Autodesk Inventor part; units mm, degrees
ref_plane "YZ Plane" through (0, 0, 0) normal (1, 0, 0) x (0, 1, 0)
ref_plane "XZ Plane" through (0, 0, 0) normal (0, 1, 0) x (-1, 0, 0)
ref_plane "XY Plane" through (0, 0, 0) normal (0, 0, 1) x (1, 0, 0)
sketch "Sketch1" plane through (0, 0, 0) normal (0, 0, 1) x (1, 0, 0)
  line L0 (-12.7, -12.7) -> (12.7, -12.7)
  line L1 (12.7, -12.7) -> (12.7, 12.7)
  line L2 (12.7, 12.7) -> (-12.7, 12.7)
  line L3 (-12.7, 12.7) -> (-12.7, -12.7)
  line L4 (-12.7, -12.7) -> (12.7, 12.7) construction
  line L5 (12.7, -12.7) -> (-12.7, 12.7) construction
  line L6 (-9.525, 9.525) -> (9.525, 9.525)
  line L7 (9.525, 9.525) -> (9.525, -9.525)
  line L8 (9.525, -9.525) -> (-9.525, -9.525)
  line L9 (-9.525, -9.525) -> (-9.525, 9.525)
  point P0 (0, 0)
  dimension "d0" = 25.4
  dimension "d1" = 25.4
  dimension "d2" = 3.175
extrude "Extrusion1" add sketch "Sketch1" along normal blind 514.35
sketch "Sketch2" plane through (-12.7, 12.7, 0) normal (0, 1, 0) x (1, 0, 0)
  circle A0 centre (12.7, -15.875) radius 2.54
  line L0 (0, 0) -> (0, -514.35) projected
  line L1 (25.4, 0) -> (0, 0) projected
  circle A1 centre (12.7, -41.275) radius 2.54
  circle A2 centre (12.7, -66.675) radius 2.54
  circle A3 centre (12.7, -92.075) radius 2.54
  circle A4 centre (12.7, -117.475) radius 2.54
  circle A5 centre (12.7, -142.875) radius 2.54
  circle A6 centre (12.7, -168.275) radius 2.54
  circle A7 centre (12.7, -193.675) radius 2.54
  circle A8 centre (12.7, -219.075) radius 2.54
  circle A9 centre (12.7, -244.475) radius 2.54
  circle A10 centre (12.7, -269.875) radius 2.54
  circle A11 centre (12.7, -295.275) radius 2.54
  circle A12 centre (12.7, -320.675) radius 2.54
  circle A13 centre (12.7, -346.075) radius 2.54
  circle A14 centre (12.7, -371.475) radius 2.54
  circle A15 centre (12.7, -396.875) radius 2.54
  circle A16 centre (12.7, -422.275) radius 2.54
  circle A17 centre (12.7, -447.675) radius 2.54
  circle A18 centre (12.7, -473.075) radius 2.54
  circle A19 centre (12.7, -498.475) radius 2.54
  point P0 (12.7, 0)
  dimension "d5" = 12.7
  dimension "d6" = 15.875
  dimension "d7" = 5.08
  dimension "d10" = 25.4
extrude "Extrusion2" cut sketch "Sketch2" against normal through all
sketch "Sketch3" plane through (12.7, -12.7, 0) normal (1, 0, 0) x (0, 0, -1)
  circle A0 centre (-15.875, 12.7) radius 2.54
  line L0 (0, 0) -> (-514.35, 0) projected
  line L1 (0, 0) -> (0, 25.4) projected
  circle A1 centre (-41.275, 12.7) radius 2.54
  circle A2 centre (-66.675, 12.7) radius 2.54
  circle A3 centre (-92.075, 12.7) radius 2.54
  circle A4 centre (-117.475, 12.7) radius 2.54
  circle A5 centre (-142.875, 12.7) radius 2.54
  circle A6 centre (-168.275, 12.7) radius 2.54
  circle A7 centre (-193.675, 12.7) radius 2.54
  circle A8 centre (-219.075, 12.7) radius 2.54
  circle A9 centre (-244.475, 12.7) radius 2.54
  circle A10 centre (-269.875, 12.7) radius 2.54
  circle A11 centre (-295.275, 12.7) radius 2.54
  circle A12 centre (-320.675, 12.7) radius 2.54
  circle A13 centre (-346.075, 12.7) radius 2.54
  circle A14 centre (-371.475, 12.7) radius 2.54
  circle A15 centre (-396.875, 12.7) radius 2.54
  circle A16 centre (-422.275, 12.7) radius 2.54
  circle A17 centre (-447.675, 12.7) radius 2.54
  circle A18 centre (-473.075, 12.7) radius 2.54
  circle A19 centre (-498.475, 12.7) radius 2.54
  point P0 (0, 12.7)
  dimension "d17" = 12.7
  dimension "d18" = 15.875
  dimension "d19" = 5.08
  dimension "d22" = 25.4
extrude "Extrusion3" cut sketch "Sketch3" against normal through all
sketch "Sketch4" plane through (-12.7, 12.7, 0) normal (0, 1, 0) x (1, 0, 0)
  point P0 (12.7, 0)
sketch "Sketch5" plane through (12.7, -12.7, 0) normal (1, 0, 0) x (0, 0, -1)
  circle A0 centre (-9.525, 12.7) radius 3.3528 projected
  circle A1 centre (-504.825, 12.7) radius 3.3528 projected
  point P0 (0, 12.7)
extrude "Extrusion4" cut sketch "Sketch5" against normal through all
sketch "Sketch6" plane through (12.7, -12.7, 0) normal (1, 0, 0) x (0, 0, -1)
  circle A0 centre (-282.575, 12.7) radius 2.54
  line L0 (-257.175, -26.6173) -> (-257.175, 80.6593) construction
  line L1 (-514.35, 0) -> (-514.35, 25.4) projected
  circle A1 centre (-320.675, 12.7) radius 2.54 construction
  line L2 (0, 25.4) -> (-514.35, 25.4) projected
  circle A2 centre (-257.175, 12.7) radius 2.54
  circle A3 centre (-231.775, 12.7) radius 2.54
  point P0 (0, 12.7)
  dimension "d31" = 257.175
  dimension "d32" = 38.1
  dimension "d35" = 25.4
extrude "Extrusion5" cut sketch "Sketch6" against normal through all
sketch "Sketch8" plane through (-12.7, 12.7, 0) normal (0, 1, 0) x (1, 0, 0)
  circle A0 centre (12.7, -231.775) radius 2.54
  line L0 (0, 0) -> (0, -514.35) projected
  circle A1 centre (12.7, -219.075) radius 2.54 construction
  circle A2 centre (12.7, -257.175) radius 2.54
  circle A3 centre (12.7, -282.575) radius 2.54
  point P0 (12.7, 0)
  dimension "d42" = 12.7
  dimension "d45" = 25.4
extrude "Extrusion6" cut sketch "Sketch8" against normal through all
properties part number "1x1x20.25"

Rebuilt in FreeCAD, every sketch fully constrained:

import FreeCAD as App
import Part
import Sketcher
Q = App.Units.Quantity

doc = App.newDocument("Part")
body = doc.addObject("PartDesign::Body", "Body")

sketch1 = body.newObject("Sketcher::SketchObject", "Sketch")
sketch1.AttachmentSupport = (doc.getObject("XY_Plane"), [""])
sketch1.MapMode = "FlatFace"
sketch1.addGeometry(Part.LineSegment(App.Vector(-13, 13, 0), App.Vector(-13, -13, 0)), False)
sketch1.addGeometry(Part.LineSegment(App.Vector(-13, -13, 0), App.Vector(13, -13, 0)), False)
sketch1.addGeometry(Part.LineSegment(App.Vector(13, -13, 0), App.Vector(13, 13, 0)), False)
sketch1.addGeometry(Part.LineSegment(App.Vector(13, 13, 0), App.Vector(-13, 13, 0)), False)
sketch1.addGeometry(Part.LineSegment(App.Vector(-10, -10, 0), App.Vector(-10, 10, 0)), False)
sketch1.addGeometry(Part.LineSegment(App.Vector(-10, 10, 0), App.Vector(10, 10, 0)), False)
sketch1.addGeometry(Part.LineSegment(App.Vector(10, 10, 0), App.Vector(10, -10, 0)), False)
sketch1.addGeometry(Part.LineSegment(App.Vector(10, -10, 0), App.Vector(-10, -10, 0)), False)
sketch1.addConstraint(Sketcher.Constraint("Coincident", 0, 2, 1, 1))
sketch1.addConstraint(Sketcher.Constraint("Coincident", 1, 2, 2, 1))
sketch1.addConstraint(Sketcher.Constraint("Coincident", 2, 2, 3, 1))
sketch1.addConstraint(Sketcher.Constraint("Coincident", 3, 2, 0, 1))
sketch1.addConstraint(Sketcher.Constraint("Coincident", 4, 2, 5, 1))
sketch1.addConstraint(Sketcher.Constraint("Coincident", 5, 2, 6, 1))
sketch1.addConstraint(Sketcher.Constraint("Coincident", 6, 2, 7, 1))
sketch1.addConstraint(Sketcher.Constraint("Coincident", 7, 2, 4, 1))
sketch1.addConstraint(Sketcher.Constraint("Vertical", 0))
sketch1.addConstraint(Sketcher.Constraint("Horizontal", 1))
sketch1.addConstraint(Sketcher.Constraint("Vertical", 2))
sketch1.addConstraint(Sketcher.Constraint("Horizontal", 3))
sketch1.addConstraint(Sketcher.Constraint("Vertical", 4))
sketch1.addConstraint(Sketcher.Constraint("Horizontal", 5))
sketch1.addConstraint(Sketcher.Constraint("Vertical", 6))
sketch1.addConstraint(Sketcher.Constraint("Horizontal", 7))
sketch1.addConstraint(Sketcher.Constraint("Symmetric", 0, 2, 2, 2, -1, 1))
sketch1.addConstraint(Sketcher.Constraint("Symmetric", 4, 2, 6, 2, -1, 1))
sketch1.addConstraint(Sketcher.Constraint("Equal", 3, 0))
sketch1.addConstraint(Sketcher.Constraint("Equal", 7, 4))
sketch1.addConstraint(Sketcher.Constraint("DistanceX", 1, 1, 1, 2, Q("1 in")))
sketch1.addConstraint(Sketcher.Constraint("DistanceX", 3, 2, 4, 2, Q("0.125 in")))
pad1 = body.newObject("PartDesign::Pad", "Pad")
pad1.Profile = sketch1
pad1.Length = Q("20.25 in")

sketch2 = body.newObject("Sketcher::SketchObject", "Sketch001")
sketch2.AttachmentSupport = (doc.getObject("XZ_Plane"), [""])
sketch2.MapMode = "FlatFace"
sketch2.AttachmentOffset = App.Placement(App.Vector(0, 0, -0.5 * 25.4), App.Rotation())
sketch2.addGeometry(Part.Circle(App.Vector(0, 15.9, 0), App.Vector(0, 0, 1), 2.5), False)
sketch2.addGeometry(Part.Circle(App.Vector(0, 41.3, 0), App.Vector(0, 0, 1), 2.5), False)
sketch2.addGeometry(Part.Circle(App.Vector(0, 66.7, 0), App.Vector(0, 0, 1), 2.5), False)
sketch2.addGeometry(Part.Circle(App.Vector(0, 92.1, 0), App.Vector(0, 0, 1), 2.5), False)
sketch2.addGeometry(Part.Circle(App.Vector(0, 117.5, 0), App.Vector(0, 0, 1), 2.5), False)
sketch2.addGeometry(Part.Circle(App.Vector(0, 142.9, 0), App.Vector(0, 0, 1), 2.5), False)
sketch2.addGeometry(Part.Circle(App.Vector(0, 168.3, 0), App.Vector(0, 0, 1), 2.5), False)
sketch2.addGeometry(Part.Circle(App.Vector(0, 193.7, 0), App.Vector(0, 0, 1), 2.5), False)
sketch2.addGeometry(Part.Circle(App.Vector(0, 219.1, 0), App.Vector(0, 0, 1), 2.5), False)
sketch2.addGeometry(Part.Circle(App.Vector(0, 244.5, 0), App.Vector(0, 0, 1), 2.5), False)
sketch2.addGeometry(Part.Circle(App.Vector(0, 269.9, 0), App.Vector(0, 0, 1), 2.5), False)
sketch2.addGeometry(Part.Circle(App.Vector(0, 295.3, 0), App.Vector(0, 0, 1), 2.5), False)
sketch2.addGeometry(Part.Circle(App.Vector(0, 320.7, 0), App.Vector(0, 0, 1), 2.5), False)
sketch2.addGeometry(Part.Circle(App.Vector(0, 346.1, 0), App.Vector(0, 0, 1), 2.5), False)
sketch2.addGeometry(Part.Circle(App.Vector(0, 371.5, 0), App.Vector(0, 0, 1), 2.5), False)
sketch2.addGeometry(Part.Circle(App.Vector(0, 396.9, 0), App.Vector(0, 0, 1), 2.5), False)
sketch2.addGeometry(Part.Circle(App.Vector(0, 422.3, 0), App.Vector(0, 0, 1), 2.5), False)
sketch2.addGeometry(Part.Circle(App.Vector(0, 447.7, 0), App.Vector(0, 0, 1), 2.5), False)
sketch2.addGeometry(Part.Circle(App.Vector(0, 473.1, 0), App.Vector(0, 0, 1), 2.5), False)
sketch2.addGeometry(Part.Circle(App.Vector(0, 498.5, 0), App.Vector(0, 0, 1), 2.5), False)
sketch2.addConstraint(Sketcher.Constraint("Equal", 0, 1))
sketch2.addConstraint(Sketcher.Constraint("Equal", 1, 2))
sketch2.addConstraint(Sketcher.Constraint("Equal", 2, 3))
sketch2.addConstraint(Sketcher.Constraint("Equal", 3, 4))
sketch2.addConstraint(Sketcher.Constraint("Equal", 4, 5))
sketch2.addConstraint(Sketcher.Constraint("Equal", 5, 6))
sketch2.addConstraint(Sketcher.Constraint("Equal", 6, 7))
sketch2.addConstraint(Sketcher.Constraint("Equal", 7, 8))
sketch2.addConstraint(Sketcher.Constraint("Equal", 8, 9))
sketch2.addConstraint(Sketcher.Constraint("Equal", 9, 10))
sketch2.addConstraint(Sketcher.Constraint("Equal", 10, 11))
sketch2.addConstraint(Sketcher.Constraint("Equal", 11, 12))
sketch2.addConstraint(Sketcher.Constraint("Equal", 12, 13))
sketch2.addConstraint(Sketcher.Constraint("Equal", 13, 14))
sketch2.addConstraint(Sketcher.Constraint("Equal", 14, 15))
sketch2.addConstraint(Sketcher.Constraint("Equal", 15, 16))
sketch2.addConstraint(Sketcher.Constraint("Equal", 16, 17))
sketch2.addConstraint(Sketcher.Constraint("Equal", 17, 18))
sketch2.addConstraint(Sketcher.Constraint("Equal", 18, 19))
sketch2.addConstraint(Sketcher.Constraint("PointOnObject", 0, 3, -2))
sketch2.addConstraint(Sketcher.Constraint("PointOnObject", 1, 3, -2))
sketch2.addConstraint(Sketcher.Constraint("PointOnObject", 2, 3, -2))
sketch2.addConstraint(Sketcher.Constraint("PointOnObject", 3, 3, -2))
sketch2.addConstraint(Sketcher.Constraint("PointOnObject", 4, 3, -2))
sketch2.addConstraint(Sketcher.Constraint("PointOnObject", 5, 3, -2))
sketch2.addConstraint(Sketcher.Constraint("PointOnObject", 6, 3, -2))
sketch2.addConstraint(Sketcher.Constraint("PointOnObject", 7, 3, -2))
sketch2.addConstraint(Sketcher.Constraint("PointOnObject", 8, 3, -2))
sketch2.addConstraint(Sketcher.Constraint("PointOnObject", 9, 3, -2))
sketch2.addConstraint(Sketcher.Constraint("PointOnObject", 10, 3, -2))
sketch2.addConstraint(Sketcher.Constraint("PointOnObject", 11, 3, -2))
sketch2.addConstraint(Sketcher.Constraint("PointOnObject", 12, 3, -2))
sketch2.addConstraint(Sketcher.Constraint("PointOnObject", 13, 3, -2))
sketch2.addConstraint(Sketcher.Constraint("PointOnObject", 14, 3, -2))
sketch2.addConstraint(Sketcher.Constraint("PointOnObject", 15, 3, -2))
sketch2.addConstraint(Sketcher.Constraint("PointOnObject", 16, 3, -2))
sketch2.addConstraint(Sketcher.Constraint("PointOnObject", 17, 3, -2))
sketch2.addConstraint(Sketcher.Constraint("PointOnObject", 18, 3, -2))
sketch2.addConstraint(Sketcher.Constraint("PointOnObject", 19, 3, -2))
sketch2.addConstraint(Sketcher.Constraint("Diameter", 0, Q("0.2 in")))
sketch2.addConstraint(Sketcher.Constraint("DistanceY", 0, 3, 1, 3, Q("1 in")))
sketch2.addConstraint(Sketcher.Constraint("DistanceY", 1, 3, 2, 3, Q("1 in")))
sketch2.addConstraint(Sketcher.Constraint("DistanceY", 2, 3, 3, 3, Q("1 in")))
sketch2.addConstraint(Sketcher.Constraint("DistanceY", 3, 3, 4, 3, Q("1 in")))
sketch2.addConstraint(Sketcher.Constraint("DistanceY", 4, 3, 5, 3, Q("1 in")))
sketch2.addConstraint(Sketcher.Constraint("DistanceY", 5, 3, 6, 3, Q("1 in")))
sketch2.addConstraint(Sketcher.Constraint("DistanceY", 6, 3, 7, 3, Q("1 in")))
sketch2.addConstraint(Sketcher.Constraint("DistanceY", 7, 3, 8, 3, Q("1 in")))
sketch2.addConstraint(Sketcher.Constraint("DistanceY", 8, 3, 9, 3, Q("1 in")))
sketch2.addConstraint(Sketcher.Constraint("DistanceY", 9, 3, 10, 3, Q("1 in")))
sketch2.addConstraint(Sketcher.Constraint("DistanceY", 10, 3, 11, 3, Q("1 in")))
sketch2.addConstraint(Sketcher.Constraint("DistanceY", 11, 3, 12, 3, Q("1 in")))
sketch2.addConstraint(Sketcher.Constraint("DistanceY", 12, 3, 13, 3, Q("1 in")))
sketch2.addConstraint(Sketcher.Constraint("DistanceY", 13, 3, 14, 3, Q("1 in")))
sketch2.addConstraint(Sketcher.Constraint("DistanceY", 14, 3, 15, 3, Q("1 in")))
sketch2.addConstraint(Sketcher.Constraint("DistanceY", 15, 3, 16, 3, Q("1 in")))
sketch2.addConstraint(Sketcher.Constraint("DistanceY", 16, 3, 17, 3, Q("1 in")))
sketch2.addConstraint(Sketcher.Constraint("DistanceY", 17, 3, 18, 3, Q("1 in")))
sketch2.addConstraint(Sketcher.Constraint("DistanceY", 18, 3, 19, 3, Q("1 in")))
sketch2.addConstraint(Sketcher.Constraint("DistanceY", -1, 1, 0, 3, Q("0.625 in")))
pocket1 = body.newObject("PartDesign::Pocket", "Pocket")
pocket1.Profile = sketch2
pocket1.Type = "ThroughAll"
pocket1.Reversed = True

sketch3 = body.newObject("Sketcher::SketchObject", "Sketch002")
sketch3.AttachmentSupport = (doc.getObject("YZ_Plane"), [""])
sketch3.MapMode = "FlatFace"
sketch3.AttachmentOffset = App.Placement(App.Vector(0, 0, 0.5 * 25.4), App.Rotation())
sketch3.addGeometry(Part.Circle(App.Vector(0, 15.9, 0), App.Vector(0, 0, 1), 2.5), False)
sketch3.addGeometry(Part.Circle(App.Vector(0, 41.3, 0), App.Vector(0, 0, 1), 2.5), False)
sketch3.addGeometry(Part.Circle(App.Vector(0, 66.7, 0), App.Vector(0, 0, 1), 2.5), False)
sketch3.addGeometry(Part.Circle(App.Vector(0, 92.1, 0), App.Vector(0, 0, 1), 2.5), False)
sketch3.addGeometry(Part.Circle(App.Vector(0, 117.5, 0), App.Vector(0, 0, 1), 2.5), False)
sketch3.addGeometry(Part.Circle(App.Vector(0, 142.9, 0), App.Vector(0, 0, 1), 2.5), False)
sketch3.addGeometry(Part.Circle(App.Vector(0, 168.3, 0), App.Vector(0, 0, 1), 2.5), False)
sketch3.addGeometry(Part.Circle(App.Vector(0, 193.7, 0), App.Vector(0, 0, 1), 2.5), False)
sketch3.addGeometry(Part.Circle(App.Vector(0, 219.1, 0), App.Vector(0, 0, 1), 2.5), False)
sketch3.addGeometry(Part.Circle(App.Vector(0, 244.5, 0), App.Vector(0, 0, 1), 2.5), False)
sketch3.addGeometry(Part.Circle(App.Vector(0, 269.9, 0), App.Vector(0, 0, 1), 2.5), False)
sketch3.addGeometry(Part.Circle(App.Vector(0, 295.3, 0), App.Vector(0, 0, 1), 2.5), False)
sketch3.addGeometry(Part.Circle(App.Vector(0, 320.7, 0), App.Vector(0, 0, 1), 2.5), False)
sketch3.addGeometry(Part.Circle(App.Vector(0, 346.1, 0), App.Vector(0, 0, 1), 2.5), False)
sketch3.addGeometry(Part.Circle(App.Vector(0, 371.5, 0), App.Vector(0, 0, 1), 2.5), False)
sketch3.addGeometry(Part.Circle(App.Vector(0, 396.9, 0), App.Vector(0, 0, 1), 2.5), False)
sketch3.addGeometry(Part.Circle(App.Vector(0, 422.3, 0), App.Vector(0, 0, 1), 2.5), False)
sketch3.addGeometry(Part.Circle(App.Vector(0, 447.7, 0), App.Vector(0, 0, 1), 2.5), False)
sketch3.addGeometry(Part.Circle(App.Vector(0, 473.1, 0), App.Vector(0, 0, 1), 2.5), False)
sketch3.addGeometry(Part.Circle(App.Vector(0, 498.5, 0), App.Vector(0, 0, 1), 2.5), False)
sketch3.addConstraint(Sketcher.Constraint("Equal", 0, 1))
sketch3.addConstraint(Sketcher.Constraint("Equal", 1, 2))
sketch3.addConstraint(Sketcher.Constraint("Equal", 2, 3))
sketch3.addConstraint(Sketcher.Constraint("Equal", 3, 4))
sketch3.addConstraint(Sketcher.Constraint("Equal", 4, 5))
sketch3.addConstraint(Sketcher.Constraint("Equal", 5, 6))
sketch3.addConstraint(Sketcher.Constraint("Equal", 6, 7))
sketch3.addConstraint(Sketcher.Constraint("Equal", 7, 8))
sketch3.addConstraint(Sketcher.Constraint("Equal", 8, 9))
sketch3.addConstraint(Sketcher.Constraint("Equal", 9, 10))
sketch3.addConstraint(Sketcher.Constraint("Equal", 10, 11))
sketch3.addConstraint(Sketcher.Constraint("Equal", 11, 12))
sketch3.addConstraint(Sketcher.Constraint("Equal", 12, 13))
sketch3.addConstraint(Sketcher.Constraint("Equal", 13, 14))
sketch3.addConstraint(Sketcher.Constraint("Equal", 14, 15))
sketch3.addConstraint(Sketcher.Constraint("Equal", 15, 16))
sketch3.addConstraint(Sketcher.Constraint("Equal", 16, 17))
sketch3.addConstraint(Sketcher.Constraint("Equal", 17, 18))
sketch3.addConstraint(Sketcher.Constraint("Equal", 18, 19))
sketch3.addConstraint(Sketcher.Constraint("PointOnObject", 0, 3, -2))
sketch3.addConstraint(Sketcher.Constraint("PointOnObject", 1, 3, -2))
sketch3.addConstraint(Sketcher.Constraint("PointOnObject", 2, 3, -2))
sketch3.addConstraint(Sketcher.Constraint("PointOnObject", 3, 3, -2))
sketch3.addConstraint(Sketcher.Constraint("PointOnObject", 4, 3, -2))
sketch3.addConstraint(Sketcher.Constraint("PointOnObject", 5, 3, -2))
sketch3.addConstraint(Sketcher.Constraint("PointOnObject", 6, 3, -2))
sketch3.addConstraint(Sketcher.Constraint("PointOnObject", 7, 3, -2))
sketch3.addConstraint(Sketcher.Constraint("PointOnObject", 8, 3, -2))
sketch3.addConstraint(Sketcher.Constraint("PointOnObject", 9, 3, -2))
sketch3.addConstraint(Sketcher.Constraint("PointOnObject", 10, 3, -2))
sketch3.addConstraint(Sketcher.Constraint("PointOnObject", 11, 3, -2))
sketch3.addConstraint(Sketcher.Constraint("PointOnObject", 12, 3, -2))
sketch3.addConstraint(Sketcher.Constraint("PointOnObject", 13, 3, -2))
sketch3.addConstraint(Sketcher.Constraint("PointOnObject", 14, 3, -2))
sketch3.addConstraint(Sketcher.Constraint("PointOnObject", 15, 3, -2))
sketch3.addConstraint(Sketcher.Constraint("PointOnObject", 16, 3, -2))
sketch3.addConstraint(Sketcher.Constraint("PointOnObject", 17, 3, -2))
sketch3.addConstraint(Sketcher.Constraint("PointOnObject", 18, 3, -2))
sketch3.addConstraint(Sketcher.Constraint("PointOnObject", 19, 3, -2))
sketch3.addConstraint(Sketcher.Constraint("Diameter", 0, Q("0.2 in")))
sketch3.addConstraint(Sketcher.Constraint("DistanceY", 0, 3, 1, 3, Q("1 in")))
sketch3.addConstraint(Sketcher.Constraint("DistanceY", 1, 3, 2, 3, Q("1 in")))
sketch3.addConstraint(Sketcher.Constraint("DistanceY", 2, 3, 3, 3, Q("1 in")))
sketch3.addConstraint(Sketcher.Constraint("DistanceY", 3, 3, 4, 3, Q("1 in")))
sketch3.addConstraint(Sketcher.Constraint("DistanceY", 4, 3, 5, 3, Q("1 in")))
sketch3.addConstraint(Sketcher.Constraint("DistanceY", 5, 3, 6, 3, Q("1 in")))
sketch3.addConstraint(Sketcher.Constraint("DistanceY", 6, 3, 7, 3, Q("1 in")))
sketch3.addConstraint(Sketcher.Constraint("DistanceY", 7, 3, 8, 3, Q("1 in")))
sketch3.addConstraint(Sketcher.Constraint("DistanceY", 8, 3, 9, 3, Q("1 in")))
sketch3.addConstraint(Sketcher.Constraint("DistanceY", 9, 3, 10, 3, Q("1 in")))
sketch3.addConstraint(Sketcher.Constraint("DistanceY", 10, 3, 11, 3, Q("1 in")))
sketch3.addConstraint(Sketcher.Constraint("DistanceY", 11, 3, 12, 3, Q("1 in")))
sketch3.addConstraint(Sketcher.Constraint("DistanceY", 12, 3, 13, 3, Q("1 in")))
sketch3.addConstraint(Sketcher.Constraint("DistanceY", 13, 3, 14, 3, Q("1 in")))
sketch3.addConstraint(Sketcher.Constraint("DistanceY", 14, 3, 15, 3, Q("1 in")))
sketch3.addConstraint(Sketcher.Constraint("DistanceY", 15, 3, 16, 3, Q("1 in")))
sketch3.addConstraint(Sketcher.Constraint("DistanceY", 16, 3, 17, 3, Q("1 in")))
sketch3.addConstraint(Sketcher.Constraint("DistanceY", 17, 3, 18, 3, Q("1 in")))
sketch3.addConstraint(Sketcher.Constraint("DistanceY", 18, 3, 19, 3, Q("1 in")))
sketch3.addConstraint(Sketcher.Constraint("DistanceY", -1, 1, 0, 3, Q("0.625 in")))
pocket2 = body.newObject("PartDesign::Pocket", "Pocket001")
pocket2.Profile = sketch3
pocket2.Type = "ThroughAll"

sketch4 = body.newObject("Sketcher::SketchObject", "Sketch003")
sketch4.AttachmentSupport = (doc.getObject("YZ_Plane"), [""])
sketch4.MapMode = "FlatFace"
sketch4.AttachmentOffset = App.Placement(App.Vector(0, 0, 0.5 * 25.4), App.Rotation())
sketch4.addGeometry(Part.Circle(App.Vector(0, 9.5, 0), App.Vector(0, 0, 1), 3.4), False)
sketch4.addGeometry(Part.Circle(App.Vector(0, 504.8, 0), App.Vector(0, 0, 1), 3.4), False)
sketch4.addConstraint(Sketcher.Constraint("Equal", 0, 1))
sketch4.addConstraint(Sketcher.Constraint("PointOnObject", 0, 3, -2))
sketch4.addConstraint(Sketcher.Constraint("PointOnObject", 1, 3, -2))
sketch4.addConstraint(Sketcher.Constraint("Diameter", 0, Q("0.264 in")))
sketch4.addConstraint(Sketcher.Constraint("DistanceY", 0, 3, 1, 3, Q("19.5 in")))
sketch4.addConstraint(Sketcher.Constraint("DistanceY", -1, 1, 0, 3, Q("0.375 in")))
pocket3 = body.newObject("PartDesign::Pocket", "Pocket002")
pocket3.Profile = sketch4
pocket3.Type = "ThroughAll"

sketch5 = body.newObject("Sketcher::SketchObject", "Sketch004")
sketch5.AttachmentSupport = (doc.getObject("YZ_Plane"), [""])
sketch5.MapMode = "FlatFace"
sketch5.AttachmentOffset = App.Placement(App.Vector(0, 0, 0.5 * 25.4), App.Rotation())
sketch5.addGeometry(Part.Circle(App.Vector(0, 282.6, 0), App.Vector(0, 0, 1), 2.5), False)
sketch5.addGeometry(Part.Circle(App.Vector(0, 257.2, 0), App.Vector(0, 0, 1), 2.5), False)
sketch5.addGeometry(Part.Circle(App.Vector(0, 231.8, 0), App.Vector(0, 0, 1), 2.5), False)
sketch5.addConstraint(Sketcher.Constraint("Equal", 0, 1))
sketch5.addConstraint(Sketcher.Constraint("Equal", 1, 2))
sketch5.addConstraint(Sketcher.Constraint("PointOnObject", 0, 3, -2))
sketch5.addConstraint(Sketcher.Constraint("PointOnObject", 1, 3, -2))
sketch5.addConstraint(Sketcher.Constraint("PointOnObject", 2, 3, -2))
sketch5.addConstraint(Sketcher.Constraint("DistanceY", 1, 3, 0, 3, Q("1 in")))
sketch5.addConstraint(Sketcher.Constraint("DistanceY", 2, 3, 1, 3, Q("1 in")))
sketch5.addConstraint(Sketcher.Constraint("Diameter", 0, Q("0.2 in")))
sketch5.addConstraint(Sketcher.Constraint("DistanceY", -1, 1, 1, 3, Q("10.125 in")))
pocket4 = body.newObject("PartDesign::Pocket", "Pocket003")
pocket4.Profile = sketch5
pocket4.Type = "ThroughAll"

sketch6 = body.newObject("Sketcher::SketchObject", "Sketch005")
sketch6.AttachmentSupport = (doc.getObject("XZ_Plane"), [""])
sketch6.MapMode = "FlatFace"
sketch6.AttachmentOffset = App.Placement(App.Vector(0, 0, -0.5 * 25.4), App.Rotation())
sketch6.addGeometry(Part.Circle(App.Vector(0, 231.8, 0), App.Vector(0, 0, 1), 2.5), False)
sketch6.addGeometry(Part.Circle(App.Vector(0, 257.2, 0), App.Vector(0, 0, 1), 2.5), False)
sketch6.addGeometry(Part.Circle(App.Vector(0, 282.6, 0), App.Vector(0, 0, 1), 2.5), False)
sketch6.addConstraint(Sketcher.Constraint("Equal", 0, 1))
sketch6.addConstraint(Sketcher.Constraint("Equal", 1, 2))
sketch6.addConstraint(Sketcher.Constraint("PointOnObject", 0, 3, -2))
sketch6.addConstraint(Sketcher.Constraint("PointOnObject", 1, 3, -2))
sketch6.addConstraint(Sketcher.Constraint("PointOnObject", 2, 3, -2))
sketch6.addConstraint(Sketcher.Constraint("DistanceY", 0, 3, 1, 3, Q("1 in")))
sketch6.addConstraint(Sketcher.Constraint("DistanceY", 1, 3, 2, 3, Q("1 in")))
sketch6.addConstraint(Sketcher.Constraint("Diameter", 0, Q("0.2 in")))
sketch6.addConstraint(Sketcher.Constraint("DistanceY", -1, 1, 0, 3, Q("9.125 in")))
pocket5 = body.newObject("PartDesign::Pocket", "Pocket004")
pocket5.Profile = sketch6
pocket5.Type = "ThroughAll"
pocket5.Reversed = True

doc.recompute()
